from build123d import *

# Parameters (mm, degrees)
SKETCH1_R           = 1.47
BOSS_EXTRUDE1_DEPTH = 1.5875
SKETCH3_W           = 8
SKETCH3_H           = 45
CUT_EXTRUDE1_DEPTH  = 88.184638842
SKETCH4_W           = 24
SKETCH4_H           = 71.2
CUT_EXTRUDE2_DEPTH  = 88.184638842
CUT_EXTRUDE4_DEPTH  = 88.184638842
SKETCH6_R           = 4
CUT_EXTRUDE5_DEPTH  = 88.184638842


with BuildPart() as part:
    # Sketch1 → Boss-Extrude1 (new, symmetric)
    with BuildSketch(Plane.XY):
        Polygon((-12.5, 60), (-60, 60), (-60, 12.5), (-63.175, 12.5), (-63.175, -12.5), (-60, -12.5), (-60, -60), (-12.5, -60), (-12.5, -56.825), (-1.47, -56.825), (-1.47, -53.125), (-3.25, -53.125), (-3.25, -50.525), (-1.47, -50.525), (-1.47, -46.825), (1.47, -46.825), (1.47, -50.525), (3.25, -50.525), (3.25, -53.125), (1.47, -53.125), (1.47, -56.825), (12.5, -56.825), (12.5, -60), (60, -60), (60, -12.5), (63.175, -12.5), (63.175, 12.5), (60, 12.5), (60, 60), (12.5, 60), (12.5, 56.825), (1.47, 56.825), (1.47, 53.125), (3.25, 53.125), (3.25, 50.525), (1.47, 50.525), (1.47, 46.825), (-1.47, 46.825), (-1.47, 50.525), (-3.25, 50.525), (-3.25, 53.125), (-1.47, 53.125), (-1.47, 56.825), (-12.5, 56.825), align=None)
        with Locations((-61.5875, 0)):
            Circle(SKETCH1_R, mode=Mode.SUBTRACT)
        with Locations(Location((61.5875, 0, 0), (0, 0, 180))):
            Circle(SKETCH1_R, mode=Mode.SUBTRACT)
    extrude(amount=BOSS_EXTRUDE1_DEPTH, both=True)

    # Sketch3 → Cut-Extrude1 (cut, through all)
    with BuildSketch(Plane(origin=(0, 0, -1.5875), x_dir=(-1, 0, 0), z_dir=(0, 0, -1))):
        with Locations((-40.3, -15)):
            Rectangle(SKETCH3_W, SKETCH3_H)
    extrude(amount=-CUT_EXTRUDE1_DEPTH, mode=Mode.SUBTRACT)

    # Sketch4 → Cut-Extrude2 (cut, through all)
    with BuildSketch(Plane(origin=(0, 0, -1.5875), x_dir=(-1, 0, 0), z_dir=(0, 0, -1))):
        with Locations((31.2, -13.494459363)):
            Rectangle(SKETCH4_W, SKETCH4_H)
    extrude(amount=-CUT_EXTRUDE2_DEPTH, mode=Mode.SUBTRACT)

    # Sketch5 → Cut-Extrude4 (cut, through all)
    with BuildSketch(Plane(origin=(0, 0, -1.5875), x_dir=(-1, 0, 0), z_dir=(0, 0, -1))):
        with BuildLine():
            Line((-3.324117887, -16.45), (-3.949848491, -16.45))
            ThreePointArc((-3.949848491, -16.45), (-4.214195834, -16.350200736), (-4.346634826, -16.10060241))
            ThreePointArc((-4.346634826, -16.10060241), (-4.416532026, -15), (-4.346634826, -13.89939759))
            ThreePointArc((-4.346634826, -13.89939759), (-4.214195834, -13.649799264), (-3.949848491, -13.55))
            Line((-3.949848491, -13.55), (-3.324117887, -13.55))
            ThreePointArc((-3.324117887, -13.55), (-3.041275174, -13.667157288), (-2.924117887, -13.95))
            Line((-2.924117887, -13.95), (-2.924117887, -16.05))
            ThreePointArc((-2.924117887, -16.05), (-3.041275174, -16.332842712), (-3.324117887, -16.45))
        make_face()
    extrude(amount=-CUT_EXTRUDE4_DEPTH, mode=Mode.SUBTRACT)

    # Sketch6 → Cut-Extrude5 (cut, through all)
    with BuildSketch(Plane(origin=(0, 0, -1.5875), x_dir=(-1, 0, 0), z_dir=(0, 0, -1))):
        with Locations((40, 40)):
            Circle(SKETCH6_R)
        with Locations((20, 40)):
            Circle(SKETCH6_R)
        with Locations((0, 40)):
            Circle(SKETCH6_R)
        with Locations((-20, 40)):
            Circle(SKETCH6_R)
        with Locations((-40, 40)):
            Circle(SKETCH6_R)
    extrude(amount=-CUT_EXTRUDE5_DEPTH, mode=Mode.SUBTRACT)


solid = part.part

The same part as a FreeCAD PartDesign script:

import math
import FreeCAD as App
import Part
import Sketcher
from FreeCAD import Vector

doc = App.newDocument("Part")
body = doc.addObject("PartDesign::Body", "Body")

sketch1 = body.newObject("Sketcher::SketchObject", "Sketch")
sketch1.AttachmentSupport = (doc.getObject("XY_Plane"), [""])
sketch1.MapMode = "FlatFace"
sketch1.addGeometry(Part.LineSegment(Vector(-12.5, 60, 0), Vector(-60, 60, 0)), False)
sketch1.addGeometry(Part.LineSegment(Vector(-60, 60, 0), Vector(-60, 12.5, 0)), False)
sketch1.addGeometry(Part.LineSegment(Vector(-60, 12.5, 0), Vector(-63.2, 12.5, 0)), False)
sketch1.addGeometry(Part.LineSegment(Vector(-63.2, 12.5, 0), Vector(-63.2, -12.5, 0)), False)
sketch1.addGeometry(Part.LineSegment(Vector(-63.2, -12.5, 0), Vector(-60, -12.5, 0)), False)
sketch1.addGeometry(Part.LineSegment(Vector(-60, -12.5, 0), Vector(-60, -60, 0)), False)
sketch1.addGeometry(Part.LineSegment(Vector(-60, -60, 0), Vector(-12.5, -60, 0)), False)
sketch1.addGeometry(Part.LineSegment(Vector(-12.5, -60, 0), Vector(-12.5, -56.8, 0)), False)
sketch1.addGeometry(Part.LineSegment(Vector(-12.5, -56.8, 0), Vector(-1.5, -56.8, 0)), False)
sketch1.addGeometry(Part.LineSegment(Vector(-1.5, -56.8, 0), Vector(-1.5, -53.1, 0)), False)
sketch1.addGeometry(Part.LineSegment(Vector(-1.5, -53.1, 0), Vector(-3.2, -53.1, 0)), False)
sketch1.addGeometry(Part.LineSegment(Vector(-3.2, -53.1, 0), Vector(-3.2, -50.5, 0)), False)
sketch1.addGeometry(Part.LineSegment(Vector(-3.2, -50.5, 0), Vector(-1.5, -50.5, 0)), False)
sketch1.addGeometry(Part.LineSegment(Vector(-1.5, -50.5, 0), Vector(-1.5, -46.8, 0)), False)
sketch1.addGeometry(Part.LineSegment(Vector(-1.5, -46.8, 0), Vector(1.5, -46.8, 0)), False)
sketch1.addGeometry(Part.LineSegment(Vector(1.5, -46.8, 0), Vector(1.5, -50.5, 0)), False)
sketch1.addGeometry(Part.LineSegment(Vector(1.5, -50.5, 0), Vector(3.2, -50.5, 0)), False)
sketch1.addGeometry(Part.LineSegment(Vector(3.2, -50.5, 0), Vector(3.2, -53.1, 0)), False)
sketch1.addGeometry(Part.LineSegment(Vector(3.2, -53.1, 0), Vector(1.5, -53.1, 0)), False)
sketch1.addGeometry(Part.LineSegment(Vector(1.5, -53.1, 0), Vector(1.5, -56.8, 0)), False)
sketch1.addGeometry(Part.LineSegment(Vector(1.5, -56.8, 0), Vector(12.5, -56.8, 0)), False)
sketch1.addGeometry(Part.LineSegment(Vector(12.5, -56.8, 0), Vector(12.5, -60, 0)), False)
sketch1.addGeometry(Part.LineSegment(Vector(12.5, -60, 0), Vector(60, -60, 0)), False)
sketch1.addGeometry(Part.LineSegment(Vector(60, -60, 0), Vector(60, -12.5, 0)), False)
sketch1.addGeometry(Part.LineSegment(Vector(60, -12.5, 0), Vector(63.2, -12.5, 0)), False)
sketch1.addGeometry(Part.LineSegment(Vector(63.2, -12.5, 0), Vector(63.2, 12.5, 0)), False)
sketch1.addGeometry(Part.LineSegment(Vector(63.2, 12.5, 0), Vector(60, 12.5, 0)), False)
sketch1.addGeometry(Part.LineSegment(Vector(60, 12.5, 0), Vector(60, 60, 0)), False)
sketch1.addGeometry(Part.LineSegment(Vector(60, 60, 0), Vector(12.5, 60, 0)), False)
sketch1.addGeometry(Part.LineSegment(Vector(12.5, 60, 0), Vector(12.5, 56.8, 0)), False)
sketch1.addGeometry(Part.LineSegment(Vector(12.5, 56.8, 0), Vector(1.5, 56.8, 0)), False)
sketch1.addGeometry(Part.LineSegment(Vector(1.5, 56.8, 0), Vector(1.5, 53.1, 0)), False)
sketch1.addGeometry(Part.LineSegment(Vector(1.5, 53.1, 0), Vector(3.2, 53.1, 0)), False)
sketch1.addGeometry(Part.LineSegment(Vector(3.2, 53.1, 0), Vector(3.2, 50.5, 0)), False)
sketch1.addGeometry(Part.LineSegment(Vector(3.2, 50.5, 0), Vector(1.5, 50.5, 0)), False)
sketch1.addGeometry(Part.LineSegment(Vector(1.5, 50.5, 0), Vector(1.5, 46.8, 0)), False)
sketch1.addGeometry(Part.LineSegment(Vector(1.5, 46.8, 0), Vector(-1.5, 46.8, 0)), False)
sketch1.addGeometry(Part.LineSegment(Vector(-1.5, 46.8, 0), Vector(-1.5, 50.5, 0)), False)
sketch1.addGeometry(Part.LineSegment(Vector(-1.5, 50.5, 0), Vector(-3.2, 50.5, 0)), False)
sketch1.addGeometry(Part.LineSegment(Vector(-3.2, 50.5, 0), Vector(-3.2, 53.1, 0)), False)
sketch1.addGeometry(Part.LineSegment(Vector(-3.2, 53.1, 0), Vector(-1.5, 53.1, 0)), False)
sketch1.addGeometry(Part.LineSegment(Vector(-1.5, 53.1, 0), Vector(-1.5, 56.8, 0)), False)
sketch1.addGeometry(Part.LineSegment(Vector(-1.5, 56.8, 0), Vector(-12.5, 56.8, 0)), False)
sketch1.addGeometry(Part.LineSegment(Vector(-12.5, 56.8, 0), Vector(-12.5, 60, 0)), False)
sketch1.addGeometry(Part.Circle(Vector(-61.6, 0, 0), Vector(0, 0, 1), 1.5), False)
sketch1.addGeometry(Part.Circle(Vector(61.6, 0, 0), Vector(0, 0, 1), 1.5), False)
sketch1.addConstraint(Sketcher.Constraint("Coincident", 0, 2, 1, 1))
sketch1.addConstraint(Sketcher.Constraint("Coincident", 1, 2, 2, 1))
sketch1.addConstraint(Sketcher.Constraint("Coincident", 2, 2, 3, 1))
sketch1.addConstraint(Sketcher.Constraint("Coincident", 3, 2, 4, 1))
sketch1.addConstraint(Sketcher.Constraint("Coincident", 4, 2, 5, 1))
sketch1.addConstraint(Sketcher.Constraint("Coincident", 5, 2, 6, 1))
sketch1.addConstraint(Sketcher.Constraint("Coincident", 6, 2, 7, 1))
sketch1.addConstraint(Sketcher.Constraint("Coincident", 7, 2, 8, 1))
sketch1.addConstraint(Sketcher.Constraint("Coincident", 8, 2, 9, 1))
sketch1.addConstraint(Sketcher.Constraint("Coincident", 9, 2, 10, 1))
sketch1.addConstraint(Sketcher.Constraint("Coincident", 10, 2, 11, 1))
sketch1.addConstraint(Sketcher.Constraint("Coincident", 11, 2, 12, 1))
sketch1.addConstraint(Sketcher.Constraint("Coincident", 12, 2, 13, 1))
sketch1.addConstraint(Sketcher.Constraint("Coincident", 13, 2, 14, 1))
sketch1.addConstraint(Sketcher.Constraint("Coincident", 14, 2, 15, 1))
sketch1.addConstraint(Sketcher.Constraint("Coincident", 15, 2, 16, 1))
sketch1.addConstraint(Sketcher.Constraint("Coincident", 16, 2, 17, 1))
sketch1.addConstraint(Sketcher.Constraint("Coincident", 17, 2, 18, 1))
sketch1.addConstraint(Sketcher.Constraint("Coincident", 18, 2, 19, 1))
sketch1.addConstraint(Sketcher.Constraint("Coincident", 19, 2, 20, 1))
sketch1.addConstraint(Sketcher.Constraint("Coincident", 20, 2, 21, 1))
sketch1.addConstraint(Sketcher.Constraint("Coincident", 21, 2, 22, 1))
sketch1.addConstraint(Sketcher.Constraint("Coincident", 22, 2, 23, 1))
sketch1.addConstraint(Sketcher.Constraint("Coincident", 23, 2, 24, 1))
sketch1.addConstraint(Sketcher.Constraint("Coincident", 24, 2, 25, 1))
sketch1.addConstraint(Sketcher.Constraint("Coincident", 25, 2, 26, 1))
sketch1.addConstraint(Sketcher.Constraint("Coincident", 26, 2, 27, 1))
sketch1.addConstraint(Sketcher.Constraint("Coincident", 27, 2, 28, 1))
sketch1.addConstraint(Sketcher.Constraint("Coincident", 28, 2, 29, 1))
sketch1.addConstraint(Sketcher.Constraint("Coincident", 29, 2, 30, 1))
sketch1.addConstraint(Sketcher.Constraint("Coincident", 30, 2, 31, 1))
sketch1.addConstraint(Sketcher.Constraint("Coincident", 31, 2, 32, 1))
sketch1.addConstraint(Sketcher.Constraint("Coincident", 32, 2, 33, 1))
sketch1.addConstraint(Sketcher.Constraint("Coincident", 33, 2, 34, 1))
sketch1.addConstraint(Sketcher.Constraint("Coincident", 34, 2, 35, 1))
sketch1.addConstraint(Sketcher.Constraint("Coincident", 35, 2, 36, 1))
sketch1.addConstraint(Sketcher.Constraint("Coincident", 36, 2, 37, 1))
sketch1.addConstraint(Sketcher.Constraint("Coincident", 37, 2, 38, 1))
sketch1.addConstraint(Sketcher.Constraint("Coincident", 38, 2, 39, 1))
sketch1.addConstraint(Sketcher.Constraint("Coincident", 39, 2, 40, 1))
sketch1.addConstraint(Sketcher.Constraint("Coincident", 40, 2, 41, 1))
sketch1.addConstraint(Sketcher.Constraint("Coincident", 41, 2, 42, 1))
sketch1.addConstraint(Sketcher.Constraint("Coincident", 42, 2, 43, 1))
sketch1.addConstraint(Sketcher.Constraint("Coincident", 43, 2, 0, 1))
sketch1.addConstraint(Sketcher.Constraint("Horizontal", 0))
sketch1.addConstraint(Sketcher.Constraint("Vertical", 1))
sketch1.addConstraint(Sketcher.Constraint("Horizontal", 2))
sketch1.addConstraint(Sketcher.Constraint("Vertical", 3))
sketch1.addConstraint(Sketcher.Constraint("Horizontal", 4))
sketch1.addConstraint(Sketcher.Constraint("Vertical", 5))
sketch1.addConstraint(Sketcher.Constraint("Horizontal", 6))
sketch1.addConstraint(Sketcher.Constraint("Vertical", 7))
sketch1.addConstraint(Sketcher.Constraint("Horizontal", 8))
sketch1.addConstraint(Sketcher.Constraint("Vertical", 9))
sketch1.addConstraint(Sketcher.Constraint("Horizontal", 10))
sketch1.addConstraint(Sketcher.Constraint("Vertical", 11))
sketch1.addConstraint(Sketcher.Constraint("Horizontal", 12))
sketch1.addConstraint(Sketcher.Constraint("Vertical", 13))
sketch1.addConstraint(Sketcher.Constraint("Horizontal", 14))
sketch1.addConstraint(Sketcher.Constraint("Vertical", 15))
sketch1.addConstraint(Sketcher.Constraint("Horizontal", 16))
sketch1.addConstraint(Sketcher.Constraint("Vertical", 17))
sketch1.addConstraint(Sketcher.Constraint("Horizontal", 18))
sketch1.addConstraint(Sketcher.Constraint("Vertical", 19))
sketch1.addConstraint(Sketcher.Constraint("Horizontal", 20))
sketch1.addConstraint(Sketcher.Constraint("Vertical", 21))
sketch1.addConstraint(Sketcher.Constraint("Horizontal", 22))
sketch1.addConstraint(Sketcher.Constraint("Vertical", 23))
sketch1.addConstraint(Sketcher.Constraint("Horizontal", 24))
sketch1.addConstraint(Sketcher.Constraint("Vertical", 25))
sketch1.addConstraint(Sketcher.Constraint("Horizontal", 26))
sketch1.addConstraint(Sketcher.Constraint("Vertical", 27))
sketch1.addConstraint(Sketcher.Constraint("Horizontal", 28))
sketch1.addConstraint(Sketcher.Constraint("Vertical", 29))
sketch1.addConstraint(Sketcher.Constraint("Horizontal", 30))
sketch1.addConstraint(Sketcher.Constraint("Vertical", 31))
sketch1.addConstraint(Sketcher.Constraint("Horizontal", 32))
sketch1.addConstraint(Sketcher.Constraint("Vertical", 33))
sketch1.addConstraint(Sketcher.Constraint("Horizontal", 34))
sketch1.addConstraint(Sketcher.Constraint("Vertical", 35))
sketch1.addConstraint(Sketcher.Constraint("Horizontal", 36))
sketch1.addConstraint(Sketcher.Constraint("Vertical", 37))
sketch1.addConstraint(Sketcher.Constraint("Horizontal", 38))
sketch1.addConstraint(Sketcher.Constraint("Vertical", 39))
sketch1.addConstraint(Sketcher.Constraint("Horizontal", 40))
sketch1.addConstraint(Sketcher.Constraint("Vertical", 41))
sketch1.addConstraint(Sketcher.Constraint("Horizontal", 42))
sketch1.addConstraint(Sketcher.Constraint("Vertical", 43))
sketch1.addConstraint(Sketcher.Constraint("Equal", 44, 45))
sketch1.addConstraint(Sketcher.Constraint("Symmetric", 44, 3, 45, 3, -1, 1))
sketch1.addConstraint(Sketcher.Constraint("Symmetric", 0, 2, 22, 2, -1, 1))
sketch1.addConstraint(Sketcher.Constraint("Symmetric", 2, 2, 24, 2, -1, 1))
sketch1.addConstraint(Sketcher.Constraint("Symmetric", 4, 2, 26, 2, -1, 1))
sketch1.addConstraint(Sketcher.Constraint("Symmetric", 6, 2, 28, 2, -1, 1))
sketch1.addConstraint(Sketcher.Constraint("Symmetric", 8, 2, 30, 2, -1, 1))
sketch1.addConstraint(Sketcher.Constraint("Symmetric", 10, 2, 32, 2, -1, 1))
sketch1.addConstraint(Sketcher.Constraint("Symmetric", 12, 2, 34, 2, -1, 1))
sketch1.addConstraint(Sketcher.Constraint("Symmetric", 14, 2, 36, 2, -1, 1))
sketch1.addConstraint(Sketcher.Constraint("Symmetric", 16, 2, 38, 2, -1, 1))
sketch1.addConstraint(Sketcher.Constraint("Symmetric", 18, 2, 40, 2, -1, 1))
sketch1.addConstraint(Sketcher.Constraint("Symmetric", 20, 2, 42, 2, -1, 1))
sketch1.addConstraint(Sketcher.Constraint("Symmetric", 12, 2, 15, 2, -2))
sketch1.addConstraint(Sketcher.Constraint("Symmetric", 10, 2, 17, 2, -2))
sketch1.addConstraint(Sketcher.Constraint("Symmetric", 8, 2, 19, 2, -2))
sketch1.addConstraint(Sketcher.Constraint("Symmetric", 6, 2, 21, 2, -2))
sketch1.addConstraint(Sketcher.Constraint("Symmetric", 4, 2, 23, 2, -2))
sketch1.addConstraint(Sketcher.Constraint("PointOnObject", 44, 3, -1))
sketch1.addConstraint(Sketcher.Constraint("Vertical", 9, 2, 12, 2))
sketch1.addConstraint(Sketcher.Constraint("Equal", 28, 1))
sketch1.addConstraint(Sketcher.Constraint("Equal", 26, 7))
sketch1.addConstraint(Sketcher.Constraint("Equal", 9, 13))
sketch1.addConstraint(Sketcher.Constraint("Diameter", 44, 2.94))
sketch1.addConstraint(Sketcher.Constraint("DistanceY", 3, 2, 3, 1, 25.0))
sketch1.addConstraint(Sketcher.Constraint("DistanceX", 0, 2, 0, 1, 47.5))
sketch1.addConstraint(Sketcher.Constraint("DistanceY", 9, 1, 9, 2, 3.7))
sketch1.addConstraint(Sketcher.Constraint("DistanceY", 11, 1, 11, 2, 2.6))
sketch1.addConstraint(Sketcher.Constraint("DistanceX", 0, 2, -1, 1, 60.0))
sketch1.addConstraint(Sketcher.Constraint("DistanceX", 8, 1, 8, 2, 11.03))
sketch1.addConstraint(Sketcher.Constraint("DistanceX", 10, 2, 10, 1, 1.78))
sketch1.addConstraint(Sketcher.Constraint("DistanceX", 2, 2, 2, 1, 3.175))
sketch1.addConstraint(Sketcher.Constraint("DistanceX", 44, 3, 45, 3, 123.175))
pad1 = body.newObject("PartDesign::Pad", "Pad")
pad1.Profile = sketch1
pad1.Length = 3.175
pad1.Midplane = True

sketch2 = body.newObject("Sketcher::SketchObject", "Sketch001")
sketch2.AttachmentSupport = (doc.getObject("XY_Plane"), [""])
sketch2.MapMode = "FlatFace"
sketch2.AttachmentOffset = App.Placement(Vector(0, 0, -1.5875), App.Rotation())
sketch2.addGeometry(Part.LineSegment(Vector(44, 8, 0), Vector(44, -38, 0)), False)
sketch2.addGeometry(Part.LineSegment(Vector(44, -38, 0), Vector(36, -38, 0)), False)
sketch2.addGeometry(Part.LineSegment(Vector(36, -38, 0), Vector(36, 8, 0)), False)
sketch2.addGeometry(Part.LineSegment(Vector(36, 8, 0), Vector(44, 8, 0)), False)
sketch2.addConstraint(Sketcher.Constraint("Coincident", 0, 2, 1, 1))
sketch2.addConstraint(Sketcher.Constraint("Coincident", 1, 2, 2, 1))
sketch2.addConstraint(Sketcher.Constraint("Coincident", 2, 2, 3, 1))
sketch2.addConstraint(Sketcher.Constraint("Coincident", 3, 2, 0, 1))
sketch2.addConstraint(Sketcher.Constraint("Vertical", 0))
sketch2.addConstraint(Sketcher.Constraint("Horizontal", 1))
sketch2.addConstraint(Sketcher.Constraint("Vertical", 2))
sketch2.addConstraint(Sketcher.Constraint("Horizontal", 3))
sketch2.addConstraint(Sketcher.Constraint("DistanceX", 1, 2, 1, 1, 8.0))
sketch2.addConstraint(Sketcher.Constraint("DistanceY", 0, 2, 0, 1, 45.0))
sketch2.addConstraint(Sketcher.Constraint("DistanceX", -1, 1, 0, 2, 44.3))
sketch2.addConstraint(Sketcher.Constraint("DistanceY", 0, 2, -1, 1, 37.5))
pocket1 = body.newObject("PartDesign::Pocket", "Pocket")
pocket1.Profile = sketch2
pocket1.Type = "ThroughAll"
pocket1.Reversed = True

sketch3 = body.newObject("Sketcher::SketchObject", "Sketch002")
sketch3.AttachmentSupport = (doc.getObject("XY_Plane"), [""])
sketch3.MapMode = "FlatFace"
sketch3.AttachmentOffset = App.Placement(Vector(0, 0, -1.5875), App.Rotation())
sketch3.addGeometry(Part.LineSegment(Vector(-19, 22, 0), Vector(-19, -49, 0)), False)
sketch3.addGeometry(Part.LineSegment(Vector(-19, -49, 0), Vector(-43, -49, 0)), False)
sketch3.addGeometry(Part.LineSegment(Vector(-43, -49, 0), Vector(-43, 22, 0)), False)
sketch3.addGeometry(Part.LineSegment(Vector(-43, 22, 0), Vector(-19, 22, 0)), False)
sketch3.addConstraint(Sketcher.Constraint("Coincident", 0, 2, 1, 1))
sketch3.addConstraint(Sketcher.Constraint("Coincident", 1, 2, 2, 1))
sketch3.addConstraint(Sketcher.Constraint("Coincident", 2, 2, 3, 1))
sketch3.addConstraint(Sketcher.Constraint("Coincident", 3, 2, 0, 1))
sketch3.addConstraint(Sketcher.Constraint("Vertical", 0))
sketch3.addConstraint(Sketcher.Constraint("Horizontal", 1))
sketch3.addConstraint(Sketcher.Constraint("Vertical", 2))
sketch3.addConstraint(Sketcher.Constraint("Horizontal", 3))
sketch3.addConstraint(Sketcher.Constraint("DistanceX", 1, 2, 1, 1, 24.0))
sketch3.addConstraint(Sketcher.Constraint("DistanceY", 0, 2, 0, 1, 71.2))
sketch3.addConstraint(Sketcher.Constraint("DistanceX", 0, 2, -1, 1, 19.2))
sketch3.addConstraint(Sketcher.Constraint("DistanceY", 0, 2, -1, 1, 49.094459))
pocket2 = body.newObject("PartDesign::Pocket", "Pocket001")
pocket2.Profile = sketch3
pocket2.Type = "ThroughAll"
pocket2.Reversed = True

sketch4 = body.newObject("Sketcher::SketchObject", "Sketch003")
sketch4.AttachmentSupport = (doc.getObject("XY_Plane"), [""])
sketch4.MapMode = "FlatFace"
sketch4.AttachmentOffset = App.Placement(Vector(0, 0, -1.5875), App.Rotation())
sketch4.addGeometry(Part.LineSegment(Vector(3.95, -16.45, 0), Vector(3.32, -16.45, 0)), False)
sketch4.addGeometry(Part.ArcOfCircle(Part.Circle(Vector(3.32, -16.05, 0), Vector(0, 0, 1), 0.4), math.radians(180), math.radians(270)), False)
sketch4.addGeometry(Part.LineSegment(Vector(2.92, -16.05, 0), Vector(2.92, -13.95, 0)), False)
sketch4.addGeometry(Part.ArcOfCircle(Part.Circle(Vector(3.32, -13.95, 0), Vector(0, 0, 1), 0.4), math.radians(90), math.radians(180)), False)
sketch4.addGeometry(Part.LineSegment(Vector(3.32, -13.55, 0), Vector(3.95, -13.55, 0)), False)
sketch4.addGeometry(Part.ArcOfCircle(Part.Circle(Vector(3.95, -13.95, 0), Vector(0, 0, 1), 0.4), math.radians(7), math.radians(90)), False)
sketch4.addGeometry(Part.ArcOfCircle(Part.Circle(Vector(-4.28, -15, 0), Vector(0, 0, 1), 8.7), math.radians(-7.27), math.radians(7.27)), False)
sketch4.addGeometry(Part.ArcOfCircle(Part.Circle(Vector(3.95, -16.05, 0), Vector(0, 0, 1), 0.4), math.radians(-90), math.radians(-7)), False)
sketch4.addConstraint(Sketcher.Constraint("Tangent", 0, 2, 1, 2))
sketch4.addConstraint(Sketcher.Constraint("Tangent", 1, 1, 2, 1))
sketch4.addConstraint(Sketcher.Constraint("Tangent", 2, 2, 3, 2))
sketch4.addConstraint(Sketcher.Constraint("Tangent", 3, 1, 4, 1))
sketch4.addConstraint(Sketcher.Constraint("Tangent", 4, 2, 5, 2))
sketch4.addConstraint(Sketcher.Constraint("Tangent", 5, 1, 6, 2))
sketch4.addConstraint(Sketcher.Constraint("Tangent", 6, 1, 7, 2))
sketch4.addConstraint(Sketcher.Constraint("Tangent", 7, 1, 0, 1))
sketch4.addConstraint(Sketcher.Constraint("Horizontal", 0))
sketch4.addConstraint(Sketcher.Constraint("Vertical", 2))
sketch4.addConstraint(Sketcher.Constraint("Horizontal", 4))
sketch4.addConstraint(Sketcher.Constraint("Equal", 1, 3))
sketch4.addConstraint(Sketcher.Constraint("Equal", 3, 5))
sketch4.addConstraint(Sketcher.Constraint("Equal", 5, 7))
sketch4.addConstraint(Sketcher.Constraint("Vertical", 5, 3, 7, 3))
sketch4.addConstraint(Sketcher.Constraint("Radius", 1, 0.4))
sketch4.addConstraint(Sketcher.Constraint("Radius", 6, 8.7))
sketch4.addConstraint(Sketcher.Constraint("DistanceY", 2, 1, 2, 2, 2.1))
sketch4.addConstraint(Sketcher.Constraint("DistanceY", 6, 3, -1, 1, 15.0))
sketch4.addConstraint(Sketcher.Constraint("DistanceX", 0, 2, 0, 1, 0.625731))
sketch4.addConstraint(Sketcher.Constraint("DistanceX", -1, 1, 5, 3, 3.949848))
pocket3 = body.newObject("PartDesign::Pocket", "Pocket002")
pocket3.Profile = sketch4
pocket3.Type = "ThroughAll"
pocket3.Reversed = True

sketch5 = body.newObject("Sketcher::SketchObject", "Sketch004")
sketch5.AttachmentSupport = (doc.getObject("XY_Plane"), [""])
sketch5.MapMode = "FlatFace"
sketch5.AttachmentOffset = App.Placement(Vector(0, 0, -1.5875), App.Rotation())
sketch5.addGeometry(Part.Circle(Vector(-40, 40, 0), Vector(0, 0, 1), 4), False)
sketch5.addGeometry(Part.Circle(Vector(-20, 40, 0), Vector(0, 0, 1), 4), False)
sketch5.addGeometry(Part.Circle(Vector(0, 40, 0), Vector(0, 0, 1), 4), False)
sketch5.addGeometry(Part.Circle(Vector(20, 40, 0), Vector(0, 0, 1), 4), False)
sketch5.addGeometry(Part.Circle(Vector(40, 40, 0), Vector(0, 0, 1), 4), False)
sketch5.addConstraint(Sketcher.Constraint("Equal", 0, 1))
sketch5.addConstraint(Sketcher.Constraint("Equal", 1, 2))
sketch5.addConstraint(Sketcher.Constraint("Equal", 2, 3))
sketch5.addConstraint(Sketcher.Constraint("Equal", 3, 4))
sketch5.addConstraint(Sketcher.Constraint("Symmetric", 1, 3, 3, 3, -2))
sketch5.addConstraint(Sketcher.Constraint("Symmetric", 0, 3, 4, 3, -2))
sketch5.addConstraint(Sketcher.Constraint("PointOnObject", 2, 3, -2))
sketch5.addConstraint(Sketcher.Constraint("Horizontal", 0, 3, 1, 3))
sketch5.addConstraint(Sketcher.Constraint("Horizontal", 1, 3, 2, 3))
sketch5.addConstraint(Sketcher.Constraint("Diameter", 0, 8.0))
sketch5.addConstraint(Sketcher.Constraint("DistanceX", 0, 3, -1, 1, 40.0))
sketch5.addConstraint(Sketcher.Constraint("DistanceY", -1, 1, 0, 3, 40.0))
sketch5.addConstraint(Sketcher.Constraint("DistanceX", 1, 3, -1, 1, 20.0))
pocket4 = body.newObject("PartDesign::Pocket", "Pocket003")
pocket4.Profile = sketch5
pocket4.Type = "ThroughAll"
pocket4.Reversed = True

doc.recompute()
